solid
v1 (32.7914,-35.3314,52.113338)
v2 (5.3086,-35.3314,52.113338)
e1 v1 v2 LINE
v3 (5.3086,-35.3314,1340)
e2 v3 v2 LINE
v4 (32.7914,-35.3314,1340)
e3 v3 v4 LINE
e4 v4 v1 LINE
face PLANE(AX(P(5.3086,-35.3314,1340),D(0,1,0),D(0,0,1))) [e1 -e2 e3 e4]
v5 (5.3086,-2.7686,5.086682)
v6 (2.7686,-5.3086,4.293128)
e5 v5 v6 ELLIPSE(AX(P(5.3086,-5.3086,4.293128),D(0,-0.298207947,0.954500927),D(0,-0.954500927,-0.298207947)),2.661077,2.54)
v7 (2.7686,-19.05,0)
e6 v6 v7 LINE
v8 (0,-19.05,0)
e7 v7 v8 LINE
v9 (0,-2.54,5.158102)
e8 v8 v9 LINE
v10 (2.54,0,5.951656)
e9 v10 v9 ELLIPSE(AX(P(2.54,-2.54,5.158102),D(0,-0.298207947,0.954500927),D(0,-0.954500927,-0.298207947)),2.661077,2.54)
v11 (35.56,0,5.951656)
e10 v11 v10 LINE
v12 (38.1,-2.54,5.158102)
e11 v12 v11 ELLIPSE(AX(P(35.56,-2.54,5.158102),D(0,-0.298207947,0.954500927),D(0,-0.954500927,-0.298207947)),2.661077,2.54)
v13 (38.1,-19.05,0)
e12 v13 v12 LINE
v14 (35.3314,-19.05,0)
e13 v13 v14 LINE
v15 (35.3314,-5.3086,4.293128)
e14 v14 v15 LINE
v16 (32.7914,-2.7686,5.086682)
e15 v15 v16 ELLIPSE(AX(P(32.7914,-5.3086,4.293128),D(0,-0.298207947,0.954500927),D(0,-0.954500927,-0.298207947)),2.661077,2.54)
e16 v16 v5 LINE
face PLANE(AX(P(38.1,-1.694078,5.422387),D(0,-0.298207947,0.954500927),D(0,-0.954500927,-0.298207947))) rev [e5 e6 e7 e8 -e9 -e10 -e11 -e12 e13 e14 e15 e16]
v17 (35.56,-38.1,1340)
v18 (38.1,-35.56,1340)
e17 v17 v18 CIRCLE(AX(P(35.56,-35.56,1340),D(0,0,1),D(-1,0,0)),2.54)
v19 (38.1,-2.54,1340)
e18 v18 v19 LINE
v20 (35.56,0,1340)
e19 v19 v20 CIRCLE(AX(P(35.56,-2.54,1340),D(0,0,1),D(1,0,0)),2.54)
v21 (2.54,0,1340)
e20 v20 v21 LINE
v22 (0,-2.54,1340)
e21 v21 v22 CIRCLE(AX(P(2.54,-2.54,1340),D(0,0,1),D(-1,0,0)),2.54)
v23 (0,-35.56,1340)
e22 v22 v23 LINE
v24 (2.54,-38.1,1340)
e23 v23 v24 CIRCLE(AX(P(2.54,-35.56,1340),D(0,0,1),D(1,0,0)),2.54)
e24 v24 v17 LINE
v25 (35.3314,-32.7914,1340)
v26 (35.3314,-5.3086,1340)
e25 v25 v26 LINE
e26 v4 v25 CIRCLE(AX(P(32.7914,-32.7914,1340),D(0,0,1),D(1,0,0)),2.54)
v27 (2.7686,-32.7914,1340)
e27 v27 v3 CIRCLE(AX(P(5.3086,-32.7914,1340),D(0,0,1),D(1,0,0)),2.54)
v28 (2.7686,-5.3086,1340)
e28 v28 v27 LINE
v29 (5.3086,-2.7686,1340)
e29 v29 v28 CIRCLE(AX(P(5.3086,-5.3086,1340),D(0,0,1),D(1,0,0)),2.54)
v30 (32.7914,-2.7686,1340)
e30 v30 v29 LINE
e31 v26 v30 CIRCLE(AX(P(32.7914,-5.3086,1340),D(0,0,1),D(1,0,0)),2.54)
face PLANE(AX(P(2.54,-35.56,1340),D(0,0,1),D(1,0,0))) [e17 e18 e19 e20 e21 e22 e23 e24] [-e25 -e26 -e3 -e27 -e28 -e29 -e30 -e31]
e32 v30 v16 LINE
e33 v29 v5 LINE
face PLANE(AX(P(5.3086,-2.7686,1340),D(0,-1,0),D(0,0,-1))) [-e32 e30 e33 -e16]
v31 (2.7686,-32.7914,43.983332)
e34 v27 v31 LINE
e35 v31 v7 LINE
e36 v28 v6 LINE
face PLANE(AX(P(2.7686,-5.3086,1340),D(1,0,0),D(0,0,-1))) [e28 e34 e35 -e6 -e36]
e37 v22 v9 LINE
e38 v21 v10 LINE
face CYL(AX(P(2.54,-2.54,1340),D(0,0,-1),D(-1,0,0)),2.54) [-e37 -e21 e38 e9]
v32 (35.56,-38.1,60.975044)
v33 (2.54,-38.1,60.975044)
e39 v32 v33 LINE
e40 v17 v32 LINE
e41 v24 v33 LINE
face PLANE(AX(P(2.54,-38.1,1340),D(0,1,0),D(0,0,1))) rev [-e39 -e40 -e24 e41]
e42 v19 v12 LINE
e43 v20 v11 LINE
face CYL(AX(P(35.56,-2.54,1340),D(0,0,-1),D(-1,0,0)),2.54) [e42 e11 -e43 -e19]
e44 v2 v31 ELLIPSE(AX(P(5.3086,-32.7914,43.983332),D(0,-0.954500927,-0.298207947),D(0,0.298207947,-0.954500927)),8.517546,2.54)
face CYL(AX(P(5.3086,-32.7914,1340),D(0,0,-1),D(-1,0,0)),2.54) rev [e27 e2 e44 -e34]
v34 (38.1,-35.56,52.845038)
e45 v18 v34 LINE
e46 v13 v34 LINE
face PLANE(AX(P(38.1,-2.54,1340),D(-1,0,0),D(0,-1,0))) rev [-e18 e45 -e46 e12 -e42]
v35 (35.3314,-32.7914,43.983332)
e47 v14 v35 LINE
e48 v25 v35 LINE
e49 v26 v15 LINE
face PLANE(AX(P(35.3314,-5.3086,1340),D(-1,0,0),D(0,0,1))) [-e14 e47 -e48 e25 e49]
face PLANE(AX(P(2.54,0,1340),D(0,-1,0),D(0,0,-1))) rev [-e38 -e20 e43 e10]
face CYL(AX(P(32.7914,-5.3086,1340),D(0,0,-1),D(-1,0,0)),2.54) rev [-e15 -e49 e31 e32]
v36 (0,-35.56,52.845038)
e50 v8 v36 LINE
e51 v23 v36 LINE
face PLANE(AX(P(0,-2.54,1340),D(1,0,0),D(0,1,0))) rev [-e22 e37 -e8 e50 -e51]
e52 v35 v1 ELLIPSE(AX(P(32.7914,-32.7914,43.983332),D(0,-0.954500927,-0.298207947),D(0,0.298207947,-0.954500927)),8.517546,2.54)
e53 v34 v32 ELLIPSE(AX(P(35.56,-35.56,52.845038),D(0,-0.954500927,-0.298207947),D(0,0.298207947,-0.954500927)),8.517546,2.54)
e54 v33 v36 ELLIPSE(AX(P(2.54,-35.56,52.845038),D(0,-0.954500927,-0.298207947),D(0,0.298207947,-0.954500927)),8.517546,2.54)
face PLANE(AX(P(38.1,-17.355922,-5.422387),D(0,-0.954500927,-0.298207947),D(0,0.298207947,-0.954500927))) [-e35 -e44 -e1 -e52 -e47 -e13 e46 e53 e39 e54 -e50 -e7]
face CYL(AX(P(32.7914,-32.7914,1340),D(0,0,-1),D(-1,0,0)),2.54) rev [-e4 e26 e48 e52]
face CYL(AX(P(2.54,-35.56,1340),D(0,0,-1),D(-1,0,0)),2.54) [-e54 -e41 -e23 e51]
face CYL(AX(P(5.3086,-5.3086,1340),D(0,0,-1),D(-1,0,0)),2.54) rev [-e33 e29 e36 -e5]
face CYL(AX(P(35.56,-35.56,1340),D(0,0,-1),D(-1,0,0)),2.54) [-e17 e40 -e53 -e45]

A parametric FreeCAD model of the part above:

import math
import FreeCAD as App
import Part
import Sketcher
Q = App.Units.Quantity


def add_polygon(sketch, points):
    """Adds a closed chain of lines whose ends are joined by coincident constraints."""
    first, n = sketch.GeometryCount, len(points)
    for a, b in zip(points, points[1:] + points[:1]):
        sketch.addGeometry(Part.LineSegment(App.Vector(*a, 0), App.Vector(*b, 0)), False)
    for i in range(n):
        sketch.addConstraint(Sketcher.Constraint("Coincident", first + i, 2, first + (i + 1) % n, 1))

doc = App.newDocument("Part")
params = doc.addObject("Spreadsheet::Sheet", "Params")
for row, (alias, value) in enumerate([
    ("sketch1_radius", "0.1 in"),
    ("sketch1_width", "1.3 in"),
    ("sketch1_width2", "1.082 in"),
    ("pad1_length", "1340 mm"),
    ("sketch2_width", "0.75 in"),
], start=1):
    params.set(f"A{row}", alias)
    params.set(f"B{row}", "=" + value)
    params.setAlias(f"B{row}", alias)

body = doc.addObject("PartDesign::Body", "Body")

# Sketch on XY plane
sketch1 = body.newObject("Sketcher::SketchObject", "Sketch")
sketch1.AttachmentSupport = (doc.getObject("XY_Plane"), [""])
sketch1.MapMode = "FlatFace"
sketch1.addGeometry(Part.LineSegment(App.Vector(35.6, 0, 0), App.Vector(2.5, 0, 0)), False)
sketch1.addGeometry(Part.ArcOfCircle(Part.Circle(App.Vector(2.5, -2.5, 0), App.Vector(0, 0, 1), 2.5), math.radians(90), math.radians(180)), False)
sketch1.addGeometry(Part.LineSegment(App.Vector(0, -2.5, 0), App.Vector(0, -35.6, 0)), False)
sketch1.addGeometry(Part.ArcOfCircle(Part.Circle(App.Vector(2.5, -35.6, 0), App.Vector(0, 0, 1), 2.5), math.radians(-180), math.radians(-90)), False)
sketch1.addGeometry(Part.LineSegment(App.Vector(2.5, -38.1, 0), App.Vector(35.6, -38.1, 0)), False)
sketch1.addGeometry(Part.ArcOfCircle(Part.Circle(App.Vector(35.6, -35.6, 0), App.Vector(0, 0, 1), 2.5), math.radians(-90), math.radians(0)), False)
sketch1.addGeometry(Part.LineSegment(App.Vector(38.1, -35.6, 0), App.Vector(38.1, -2.5, 0)), False)
sketch1.addGeometry(Part.ArcOfCircle(Part.Circle(App.Vector(35.6, -2.5, 0), App.Vector(0, 0, 1), 2.5), math.radians(0), math.radians(90)), False)
sketch1.addGeometry(Part.LineSegment(App.Vector(5.3, -2.8, 0), App.Vector(32.8, -2.8, 0)), False)
sketch1.addGeometry(Part.ArcOfCircle(Part.Circle(App.Vector(32.8, -5.3, 0), App.Vector(0, 0, 1), 2.5), math.radians(0), math.radians(90)), False)
sketch1.addGeometry(Part.LineSegment(App.Vector(35.3, -5.3, 0), App.Vector(35.3, -32.8, 0)), False)
sketch1.addGeometry(Part.ArcOfCircle(Part.Circle(App.Vector(32.8, -32.8, 0), App.Vector(0, 0, 1), 2.5), math.radians(-90), math.radians(0)), False)
sketch1.addGeometry(Part.LineSegment(App.Vector(32.8, -35.3, 0), App.Vector(5.3, -35.3, 0)), False)
sketch1.addGeometry(Part.ArcOfCircle(Part.Circle(App.Vector(5.3, -32.8, 0), App.Vector(0, 0, 1), 2.5), math.radians(-180), math.radians(-90)), False)
sketch1.addGeometry(Part.LineSegment(App.Vector(2.8, -32.8, 0), App.Vector(2.8, -5.3, 0)), False)
sketch1.addGeometry(Part.ArcOfCircle(Part.Circle(App.Vector(5.3, -5.3, 0), App.Vector(0, 0, 1), 2.5), math.radians(90), math.radians(180)), False)
sketch1.addConstraint(Sketcher.Constraint("Tangent", 0, 2, 1, 1))
sketch1.addConstraint(Sketcher.Constraint("Tangent", 1, 2, 2, 1))
sketch1.addConstraint(Sketcher.Constraint("Tangent", 2, 2, 3, 1))
sketch1.addConstraint(Sketcher.Constraint("Tangent", 3, 2, 4, 1))
sketch1.addConstraint(Sketcher.Constraint("Tangent", 4, 2, 5, 1))
sketch1.addConstraint(Sketcher.Constraint("Tangent", 5, 2, 6, 1))
sketch1.addConstraint(Sketcher.Constraint("Tangent", 6, 2, 7, 1))
sketch1.addConstraint(Sketcher.Constraint("Tangent", 7, 2, 0, 1))
sketch1.addConstraint(Sketcher.Constraint("Tangent", 8, 2, 9, 2))
sketch1.addConstraint(Sketcher.Constraint("Tangent", 9, 1, 10, 1))
sketch1.addConstraint(Sketcher.Constraint("Tangent", 10, 2, 11, 2))
sketch1.addConstraint(Sketcher.Constraint("Tangent", 11, 1, 12, 1))
sketch1.addConstraint(Sketcher.Constraint("Tangent", 12, 2, 13, 2))
sketch1.addConstraint(Sketcher.Constraint("Tangent", 13, 1, 14, 1))
sketch1.addConstraint(Sketcher.Constraint("Tangent", 14, 2, 15, 2))
sketch1.addConstraint(Sketcher.Constraint("Tangent", 15, 1, 8, 1))
sketch1.addConstraint(Sketcher.Constraint("Horizontal", 0))
sketch1.addConstraint(Sketcher.Constraint("Vertical", 2))
sketch1.addConstraint(Sketcher.Constraint("Horizontal", 4))
sketch1.addConstraint(Sketcher.Constraint("Vertical", 6))
sketch1.addConstraint(Sketcher.Constraint("Horizontal", 8))
sketch1.addConstraint(Sketcher.Constraint("Vertical", 10))
sketch1.addConstraint(Sketcher.Constraint("Horizontal", 12))
sketch1.addConstraint(Sketcher.Constraint("Vertical", 14))
sketch1.addConstraint(Sketcher.Constraint("Equal", 1, 3))
sketch1.addConstraint(Sketcher.Constraint("Equal", 3, 5))
sketch1.addConstraint(Sketcher.Constraint("Equal", 5, 7))
sketch1.addConstraint(Sketcher.Constraint("Equal", 7, 9))
sketch1.addConstraint(Sketcher.Constraint("Equal", 9, 11))
sketch1.addConstraint(Sketcher.Constraint("Equal", 11, 13))
sketch1.addConstraint(Sketcher.Constraint("Equal", 13, 15))
sketch1.addConstraint(Sketcher.Constraint("PointOnObject", 0, 2, -1))
sketch1.addConstraint(Sketcher.Constraint("PointOnObject", 1, 2, -2))
sketch1.addConstraint(Sketcher.Constraint("Equal", 4, 2))
sketch1.addConstraint(Sketcher.Constraint("Equal", 12, 10))
sketch1.addConstraint(Sketcher.Constraint("Radius", 1, Q("0.1 in")))
sketch1.addConstraint(Sketcher.Constraint("DistanceX", 0, 2, 0, 1, Q("1.3 in")))
sketch1.addConstraint(Sketcher.Constraint("DistanceX", 8, 1, 8, 2, Q("1.082 in")))
sketch1.addConstraint(Sketcher.Constraint("DistanceX", -1, 1, 9, 3, Q("1.291 in")))
sketch1.addConstraint(Sketcher.Constraint("DistanceY", 9, 3, -1, 1, Q("0.209 in")))
sketch1.setExpression("Constraints[35]", "Params.sketch1_radius")
sketch1.setExpression("Constraints[36]", "Params.sketch1_width")
sketch1.setExpression("Constraints[37]", "Params.sketch1_width2")
pad1 = body.newObject("PartDesign::Pad", "Pad")
pad1.Profile = sketch1
pad1.setExpression("Length", "Params.pad1_length")

# Sketch on YZ plane
sketch2 = body.newObject("Sketcher::SketchObject", "Sketch001")
sketch2.AttachmentSupport = (doc.getObject("YZ_Plane"), [""])
sketch2.MapMode = "FlatFace"
add_polygon(sketch2, [(-2.5, 5.2), (0, 6), (0, 0), (-19.1, 0)])  # lines 0-3
add_polygon(sketch2, [(-35.6, 52.8), (-19.1, 0), (-38.1, 0), (-38.1, 61)])  # lines 4-7
sketch2.addConstraint(Sketcher.Constraint("Vertical", 1))
sketch2.addConstraint(Sketcher.Constraint("Horizontal", 2))
sketch2.addConstraint(Sketcher.Constraint("Horizontal", 5))
sketch2.addConstraint(Sketcher.Constraint("Vertical", 6))
sketch2.addConstraint(Sketcher.Constraint("Coincident", 1, 2, -1, 1))
sketch2.addConstraint(Sketcher.Constraint("Coincident", 4, 2, 2, 2))
sketch2.addConstraint(Sketcher.Constraint("Parallel", 0, 3))
sketch2.addConstraint(Sketcher.Constraint("Perpendicular", 3, 4))
sketch2.addConstraint(Sketcher.Constraint("Parallel", 4, 7))
sketch2.addConstraint(Sketcher.Constraint("Equal", 2, 5))
sketch2.addConstraint(Sketcher.Constraint("DistanceX", 2, 2, 2, 1, Q("0.75 in")))
sketch2.addConstraint(Sketcher.Constraint("DistanceX", 3, 2, -1, 1, Q("0.1 in")))
sketch2.addConstraint(Sketcher.Constraint("DistanceX", 7, 2, -1, 1, Q("1.4 in")))
sketch2.addConstraint(Sketcher.Constraint("Angle", 0, Q("17.35 deg")))
sketch2.setExpression("Constraints[18]", "Params.sketch2_width")
pocket1 = body.newObject("PartDesign::Pocket", "Pocket")
pocket1.Profile = sketch2
pocket1.Type = "ThroughAll"
pocket1.Reversed = True

doc.recompute()
